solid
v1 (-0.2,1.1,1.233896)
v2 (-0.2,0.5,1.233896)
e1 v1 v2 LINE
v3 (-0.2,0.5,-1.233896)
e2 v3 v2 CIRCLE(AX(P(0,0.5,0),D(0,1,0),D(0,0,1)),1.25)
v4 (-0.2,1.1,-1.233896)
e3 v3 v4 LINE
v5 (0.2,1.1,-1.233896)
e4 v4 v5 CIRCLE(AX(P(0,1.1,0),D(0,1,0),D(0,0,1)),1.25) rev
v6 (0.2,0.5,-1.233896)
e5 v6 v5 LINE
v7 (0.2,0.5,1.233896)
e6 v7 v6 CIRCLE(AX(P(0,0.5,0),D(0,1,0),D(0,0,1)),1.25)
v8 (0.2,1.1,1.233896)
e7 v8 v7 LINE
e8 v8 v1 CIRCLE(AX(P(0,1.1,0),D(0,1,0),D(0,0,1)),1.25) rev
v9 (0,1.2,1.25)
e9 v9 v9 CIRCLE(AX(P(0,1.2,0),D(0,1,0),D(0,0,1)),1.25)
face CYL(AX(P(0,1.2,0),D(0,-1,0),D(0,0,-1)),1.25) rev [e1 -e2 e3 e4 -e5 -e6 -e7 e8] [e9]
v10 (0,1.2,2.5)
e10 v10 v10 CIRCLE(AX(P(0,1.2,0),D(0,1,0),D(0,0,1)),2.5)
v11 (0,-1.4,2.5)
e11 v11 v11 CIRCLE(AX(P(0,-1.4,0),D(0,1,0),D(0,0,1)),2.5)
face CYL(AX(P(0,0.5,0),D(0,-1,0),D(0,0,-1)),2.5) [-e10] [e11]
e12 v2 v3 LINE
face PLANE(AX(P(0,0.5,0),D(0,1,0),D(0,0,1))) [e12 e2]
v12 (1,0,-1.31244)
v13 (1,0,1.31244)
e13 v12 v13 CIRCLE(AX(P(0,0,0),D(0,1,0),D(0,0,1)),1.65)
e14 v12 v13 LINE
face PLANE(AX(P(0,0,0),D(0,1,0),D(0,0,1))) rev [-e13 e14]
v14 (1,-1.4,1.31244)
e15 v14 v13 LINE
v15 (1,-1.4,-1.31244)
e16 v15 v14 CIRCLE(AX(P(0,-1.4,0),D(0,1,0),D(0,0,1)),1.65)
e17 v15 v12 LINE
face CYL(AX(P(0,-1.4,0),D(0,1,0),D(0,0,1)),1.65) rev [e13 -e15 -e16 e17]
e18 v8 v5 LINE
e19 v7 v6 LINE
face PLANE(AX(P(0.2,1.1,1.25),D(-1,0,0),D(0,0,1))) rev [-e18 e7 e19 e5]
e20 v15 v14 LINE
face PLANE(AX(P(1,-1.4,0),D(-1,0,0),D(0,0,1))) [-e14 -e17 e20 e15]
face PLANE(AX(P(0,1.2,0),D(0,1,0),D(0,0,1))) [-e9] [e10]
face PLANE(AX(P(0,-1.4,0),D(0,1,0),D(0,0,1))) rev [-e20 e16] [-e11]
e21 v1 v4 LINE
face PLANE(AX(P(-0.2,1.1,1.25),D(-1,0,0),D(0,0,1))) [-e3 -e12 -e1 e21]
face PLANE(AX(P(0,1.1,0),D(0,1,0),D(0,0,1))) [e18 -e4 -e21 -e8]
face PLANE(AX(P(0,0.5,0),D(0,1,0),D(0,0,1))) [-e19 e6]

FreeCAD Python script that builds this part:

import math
import FreeCAD as App
import Part
import Sketcher
Q = App.Units.Quantity


def add_polygon(sketch, points):
    """Adds a closed chain of lines whose ends are joined by coincident constraints."""
    first, n = sketch.GeometryCount, len(points)
    for a, b in zip(points, points[1:] + points[:1]):
        sketch.addGeometry(Part.LineSegment(App.Vector(*a, 0), App.Vector(*b, 0)), False)
    for i in range(n):
        sketch.addConstraint(Sketcher.Constraint("Coincident", first + i, 2, first + (i + 1) % n, 1))

doc = App.newDocument("Part")
body = doc.addObject("PartDesign::Body", "Body")

# Sketch on XZ plane
sketch1 = doc.addObject("Sketcher::SketchObject", "Sketch")
body.addObject(sketch1)
sketch1.AttachmentSupport = (doc.XZ_Plane, [""])
sketch1.MapMode = "FlatFace"
sketch1.addGeometry(Part.Circle(App.Vector(0, 0, 0), App.Vector(0, 0, 1), 2.5), False)
sketch1.addConstraint([
    Sketcher.Constraint("Coincident", 0, 3, -1, 1),
    Sketcher.Constraint("Diameter", 0, Q("5 mm")),
])
pad1 = doc.addObject("PartDesign::Pad", "Pad")
body.addObject(pad1)
pad1.Profile = sketch1
pad1.Length = 0.5
pad1.Reversed = True

# Sketch on XZ plane
sketch2 = doc.addObject("Sketcher::SketchObject", "Sketch001")
body.addObject(sketch2)
sketch2.AttachmentSupport = (doc.XZ_Plane, [""])
sketch2.MapMode = "FlatFace"
sketch2.AttachmentOffset = App.Placement(App.Vector(0, 0, 1.4), App.Rotation())
sketch2.addGeometry([
    Part.Circle(App.Vector(0, 0, 0), App.Vector(0, 0, 1), 2.5),
    Part.ArcOfCircle(Part.Circle(App.Vector(0, 0, 0), App.Vector(0, 0, 1), 1.6), math.radians(53), math.radians(307)),
    Part.LineSegment(App.Vector(1, -1.3, 0), App.Vector(1, 1.3, 0)),
], False)
sketch2.addConstraint([
    Sketcher.Constraint("Coincident", 1, 1, 2, 2),
    Sketcher.Constraint("Coincident", 2, 1, 1, 2),
    Sketcher.Constraint("Vertical", 2),
    Sketcher.Constraint("Coincident", 0, 3, -1, 1),
    Sketcher.Constraint("Coincident", 1, 3, -1, 1),
    Sketcher.Constraint("Diameter", 0, Q("5 mm")),
    Sketcher.Constraint("Radius", 1, Q("1.65 mm")),
    Sketcher.Constraint("DistanceX", -1, 1, 1, 1, Q("1 mm")),
])
pad2 = doc.addObject("PartDesign::Pad", "Pad001")
body.addObject(pad2)
pad2.Profile = sketch2
pad2.Length = 1.4
pad2.Reversed = True

# Sketch on XZ plane
sketch3 = doc.addObject("Sketcher::SketchObject", "Sketch002")
body.addObject(sketch3)
sketch3.AttachmentSupport = (doc.XZ_Plane, [""])
sketch3.MapMode = "FlatFace"
sketch3.AttachmentOffset = App.Placement(App.Vector(0, 0, -0.5), App.Rotation())
add_polygon(sketch3, [(-0.2, -1.25), (-0.2, 1.25), (0.2, 1.25), (0.2, -1.25)])  # lines 0-3
sketch3.addConstraint([
    Sketcher.Constraint("Vertical", 0),
    Sketcher.Constraint("Horizontal", 1),
    Sketcher.Constraint("Vertical", 2),
    Sketcher.Constraint("Horizontal", 3),
    Sketcher.Constraint("Symmetric", 0, 2, 2, 2, -1, 1),
    Sketcher.Constraint("DistanceX", 1, 1, 1, 2, Q("0.4 mm")),
    Sketcher.Constraint("DistanceY", 0, 1, 0, 2, Q("2.5 mm")),
])
pad3 = doc.addObject("PartDesign::Pad", "Pad002")
body.addObject(pad3)
pad3.Profile = sketch3
pad3.Length = 0.6
pad3.Reversed = True

# Sketch on XZ plane
sketch4 = doc.addObject("Sketcher::SketchObject", "Sketch003")
body.addObject(sketch4)
sketch4.AttachmentSupport = (doc.XZ_Plane, [""])
sketch4.MapMode = "FlatFace"
sketch4.AttachmentOffset = App.Placement(App.Vector(0, 0, -0.5), App.Rotation())
sketch4.addGeometry([
    Part.Circle(App.Vector(0, 0, 0), App.Vector(0, 0, 1), 2.5),
    Part.Circle(App.Vector(0, 0, 0), App.Vector(0, 0, 1), 1.2),
], False)
sketch4.addConstraint([
    Sketcher.Constraint("Coincident", 0, 3, -1, 1),
    Sketcher.Constraint("Coincident", 1, 3, -1, 1),
    Sketcher.Constraint("Diameter", 0, Q("5 mm")),
    Sketcher.Constraint("Diameter", 1, Q("2.5 mm")),
])
pad4 = doc.addObject("PartDesign::Pad", "Pad003")
body.addObject(pad4)
pad4.Profile = sketch4
pad4.Length = 0.7
pad4.Reversed = True

doc.recompute()
